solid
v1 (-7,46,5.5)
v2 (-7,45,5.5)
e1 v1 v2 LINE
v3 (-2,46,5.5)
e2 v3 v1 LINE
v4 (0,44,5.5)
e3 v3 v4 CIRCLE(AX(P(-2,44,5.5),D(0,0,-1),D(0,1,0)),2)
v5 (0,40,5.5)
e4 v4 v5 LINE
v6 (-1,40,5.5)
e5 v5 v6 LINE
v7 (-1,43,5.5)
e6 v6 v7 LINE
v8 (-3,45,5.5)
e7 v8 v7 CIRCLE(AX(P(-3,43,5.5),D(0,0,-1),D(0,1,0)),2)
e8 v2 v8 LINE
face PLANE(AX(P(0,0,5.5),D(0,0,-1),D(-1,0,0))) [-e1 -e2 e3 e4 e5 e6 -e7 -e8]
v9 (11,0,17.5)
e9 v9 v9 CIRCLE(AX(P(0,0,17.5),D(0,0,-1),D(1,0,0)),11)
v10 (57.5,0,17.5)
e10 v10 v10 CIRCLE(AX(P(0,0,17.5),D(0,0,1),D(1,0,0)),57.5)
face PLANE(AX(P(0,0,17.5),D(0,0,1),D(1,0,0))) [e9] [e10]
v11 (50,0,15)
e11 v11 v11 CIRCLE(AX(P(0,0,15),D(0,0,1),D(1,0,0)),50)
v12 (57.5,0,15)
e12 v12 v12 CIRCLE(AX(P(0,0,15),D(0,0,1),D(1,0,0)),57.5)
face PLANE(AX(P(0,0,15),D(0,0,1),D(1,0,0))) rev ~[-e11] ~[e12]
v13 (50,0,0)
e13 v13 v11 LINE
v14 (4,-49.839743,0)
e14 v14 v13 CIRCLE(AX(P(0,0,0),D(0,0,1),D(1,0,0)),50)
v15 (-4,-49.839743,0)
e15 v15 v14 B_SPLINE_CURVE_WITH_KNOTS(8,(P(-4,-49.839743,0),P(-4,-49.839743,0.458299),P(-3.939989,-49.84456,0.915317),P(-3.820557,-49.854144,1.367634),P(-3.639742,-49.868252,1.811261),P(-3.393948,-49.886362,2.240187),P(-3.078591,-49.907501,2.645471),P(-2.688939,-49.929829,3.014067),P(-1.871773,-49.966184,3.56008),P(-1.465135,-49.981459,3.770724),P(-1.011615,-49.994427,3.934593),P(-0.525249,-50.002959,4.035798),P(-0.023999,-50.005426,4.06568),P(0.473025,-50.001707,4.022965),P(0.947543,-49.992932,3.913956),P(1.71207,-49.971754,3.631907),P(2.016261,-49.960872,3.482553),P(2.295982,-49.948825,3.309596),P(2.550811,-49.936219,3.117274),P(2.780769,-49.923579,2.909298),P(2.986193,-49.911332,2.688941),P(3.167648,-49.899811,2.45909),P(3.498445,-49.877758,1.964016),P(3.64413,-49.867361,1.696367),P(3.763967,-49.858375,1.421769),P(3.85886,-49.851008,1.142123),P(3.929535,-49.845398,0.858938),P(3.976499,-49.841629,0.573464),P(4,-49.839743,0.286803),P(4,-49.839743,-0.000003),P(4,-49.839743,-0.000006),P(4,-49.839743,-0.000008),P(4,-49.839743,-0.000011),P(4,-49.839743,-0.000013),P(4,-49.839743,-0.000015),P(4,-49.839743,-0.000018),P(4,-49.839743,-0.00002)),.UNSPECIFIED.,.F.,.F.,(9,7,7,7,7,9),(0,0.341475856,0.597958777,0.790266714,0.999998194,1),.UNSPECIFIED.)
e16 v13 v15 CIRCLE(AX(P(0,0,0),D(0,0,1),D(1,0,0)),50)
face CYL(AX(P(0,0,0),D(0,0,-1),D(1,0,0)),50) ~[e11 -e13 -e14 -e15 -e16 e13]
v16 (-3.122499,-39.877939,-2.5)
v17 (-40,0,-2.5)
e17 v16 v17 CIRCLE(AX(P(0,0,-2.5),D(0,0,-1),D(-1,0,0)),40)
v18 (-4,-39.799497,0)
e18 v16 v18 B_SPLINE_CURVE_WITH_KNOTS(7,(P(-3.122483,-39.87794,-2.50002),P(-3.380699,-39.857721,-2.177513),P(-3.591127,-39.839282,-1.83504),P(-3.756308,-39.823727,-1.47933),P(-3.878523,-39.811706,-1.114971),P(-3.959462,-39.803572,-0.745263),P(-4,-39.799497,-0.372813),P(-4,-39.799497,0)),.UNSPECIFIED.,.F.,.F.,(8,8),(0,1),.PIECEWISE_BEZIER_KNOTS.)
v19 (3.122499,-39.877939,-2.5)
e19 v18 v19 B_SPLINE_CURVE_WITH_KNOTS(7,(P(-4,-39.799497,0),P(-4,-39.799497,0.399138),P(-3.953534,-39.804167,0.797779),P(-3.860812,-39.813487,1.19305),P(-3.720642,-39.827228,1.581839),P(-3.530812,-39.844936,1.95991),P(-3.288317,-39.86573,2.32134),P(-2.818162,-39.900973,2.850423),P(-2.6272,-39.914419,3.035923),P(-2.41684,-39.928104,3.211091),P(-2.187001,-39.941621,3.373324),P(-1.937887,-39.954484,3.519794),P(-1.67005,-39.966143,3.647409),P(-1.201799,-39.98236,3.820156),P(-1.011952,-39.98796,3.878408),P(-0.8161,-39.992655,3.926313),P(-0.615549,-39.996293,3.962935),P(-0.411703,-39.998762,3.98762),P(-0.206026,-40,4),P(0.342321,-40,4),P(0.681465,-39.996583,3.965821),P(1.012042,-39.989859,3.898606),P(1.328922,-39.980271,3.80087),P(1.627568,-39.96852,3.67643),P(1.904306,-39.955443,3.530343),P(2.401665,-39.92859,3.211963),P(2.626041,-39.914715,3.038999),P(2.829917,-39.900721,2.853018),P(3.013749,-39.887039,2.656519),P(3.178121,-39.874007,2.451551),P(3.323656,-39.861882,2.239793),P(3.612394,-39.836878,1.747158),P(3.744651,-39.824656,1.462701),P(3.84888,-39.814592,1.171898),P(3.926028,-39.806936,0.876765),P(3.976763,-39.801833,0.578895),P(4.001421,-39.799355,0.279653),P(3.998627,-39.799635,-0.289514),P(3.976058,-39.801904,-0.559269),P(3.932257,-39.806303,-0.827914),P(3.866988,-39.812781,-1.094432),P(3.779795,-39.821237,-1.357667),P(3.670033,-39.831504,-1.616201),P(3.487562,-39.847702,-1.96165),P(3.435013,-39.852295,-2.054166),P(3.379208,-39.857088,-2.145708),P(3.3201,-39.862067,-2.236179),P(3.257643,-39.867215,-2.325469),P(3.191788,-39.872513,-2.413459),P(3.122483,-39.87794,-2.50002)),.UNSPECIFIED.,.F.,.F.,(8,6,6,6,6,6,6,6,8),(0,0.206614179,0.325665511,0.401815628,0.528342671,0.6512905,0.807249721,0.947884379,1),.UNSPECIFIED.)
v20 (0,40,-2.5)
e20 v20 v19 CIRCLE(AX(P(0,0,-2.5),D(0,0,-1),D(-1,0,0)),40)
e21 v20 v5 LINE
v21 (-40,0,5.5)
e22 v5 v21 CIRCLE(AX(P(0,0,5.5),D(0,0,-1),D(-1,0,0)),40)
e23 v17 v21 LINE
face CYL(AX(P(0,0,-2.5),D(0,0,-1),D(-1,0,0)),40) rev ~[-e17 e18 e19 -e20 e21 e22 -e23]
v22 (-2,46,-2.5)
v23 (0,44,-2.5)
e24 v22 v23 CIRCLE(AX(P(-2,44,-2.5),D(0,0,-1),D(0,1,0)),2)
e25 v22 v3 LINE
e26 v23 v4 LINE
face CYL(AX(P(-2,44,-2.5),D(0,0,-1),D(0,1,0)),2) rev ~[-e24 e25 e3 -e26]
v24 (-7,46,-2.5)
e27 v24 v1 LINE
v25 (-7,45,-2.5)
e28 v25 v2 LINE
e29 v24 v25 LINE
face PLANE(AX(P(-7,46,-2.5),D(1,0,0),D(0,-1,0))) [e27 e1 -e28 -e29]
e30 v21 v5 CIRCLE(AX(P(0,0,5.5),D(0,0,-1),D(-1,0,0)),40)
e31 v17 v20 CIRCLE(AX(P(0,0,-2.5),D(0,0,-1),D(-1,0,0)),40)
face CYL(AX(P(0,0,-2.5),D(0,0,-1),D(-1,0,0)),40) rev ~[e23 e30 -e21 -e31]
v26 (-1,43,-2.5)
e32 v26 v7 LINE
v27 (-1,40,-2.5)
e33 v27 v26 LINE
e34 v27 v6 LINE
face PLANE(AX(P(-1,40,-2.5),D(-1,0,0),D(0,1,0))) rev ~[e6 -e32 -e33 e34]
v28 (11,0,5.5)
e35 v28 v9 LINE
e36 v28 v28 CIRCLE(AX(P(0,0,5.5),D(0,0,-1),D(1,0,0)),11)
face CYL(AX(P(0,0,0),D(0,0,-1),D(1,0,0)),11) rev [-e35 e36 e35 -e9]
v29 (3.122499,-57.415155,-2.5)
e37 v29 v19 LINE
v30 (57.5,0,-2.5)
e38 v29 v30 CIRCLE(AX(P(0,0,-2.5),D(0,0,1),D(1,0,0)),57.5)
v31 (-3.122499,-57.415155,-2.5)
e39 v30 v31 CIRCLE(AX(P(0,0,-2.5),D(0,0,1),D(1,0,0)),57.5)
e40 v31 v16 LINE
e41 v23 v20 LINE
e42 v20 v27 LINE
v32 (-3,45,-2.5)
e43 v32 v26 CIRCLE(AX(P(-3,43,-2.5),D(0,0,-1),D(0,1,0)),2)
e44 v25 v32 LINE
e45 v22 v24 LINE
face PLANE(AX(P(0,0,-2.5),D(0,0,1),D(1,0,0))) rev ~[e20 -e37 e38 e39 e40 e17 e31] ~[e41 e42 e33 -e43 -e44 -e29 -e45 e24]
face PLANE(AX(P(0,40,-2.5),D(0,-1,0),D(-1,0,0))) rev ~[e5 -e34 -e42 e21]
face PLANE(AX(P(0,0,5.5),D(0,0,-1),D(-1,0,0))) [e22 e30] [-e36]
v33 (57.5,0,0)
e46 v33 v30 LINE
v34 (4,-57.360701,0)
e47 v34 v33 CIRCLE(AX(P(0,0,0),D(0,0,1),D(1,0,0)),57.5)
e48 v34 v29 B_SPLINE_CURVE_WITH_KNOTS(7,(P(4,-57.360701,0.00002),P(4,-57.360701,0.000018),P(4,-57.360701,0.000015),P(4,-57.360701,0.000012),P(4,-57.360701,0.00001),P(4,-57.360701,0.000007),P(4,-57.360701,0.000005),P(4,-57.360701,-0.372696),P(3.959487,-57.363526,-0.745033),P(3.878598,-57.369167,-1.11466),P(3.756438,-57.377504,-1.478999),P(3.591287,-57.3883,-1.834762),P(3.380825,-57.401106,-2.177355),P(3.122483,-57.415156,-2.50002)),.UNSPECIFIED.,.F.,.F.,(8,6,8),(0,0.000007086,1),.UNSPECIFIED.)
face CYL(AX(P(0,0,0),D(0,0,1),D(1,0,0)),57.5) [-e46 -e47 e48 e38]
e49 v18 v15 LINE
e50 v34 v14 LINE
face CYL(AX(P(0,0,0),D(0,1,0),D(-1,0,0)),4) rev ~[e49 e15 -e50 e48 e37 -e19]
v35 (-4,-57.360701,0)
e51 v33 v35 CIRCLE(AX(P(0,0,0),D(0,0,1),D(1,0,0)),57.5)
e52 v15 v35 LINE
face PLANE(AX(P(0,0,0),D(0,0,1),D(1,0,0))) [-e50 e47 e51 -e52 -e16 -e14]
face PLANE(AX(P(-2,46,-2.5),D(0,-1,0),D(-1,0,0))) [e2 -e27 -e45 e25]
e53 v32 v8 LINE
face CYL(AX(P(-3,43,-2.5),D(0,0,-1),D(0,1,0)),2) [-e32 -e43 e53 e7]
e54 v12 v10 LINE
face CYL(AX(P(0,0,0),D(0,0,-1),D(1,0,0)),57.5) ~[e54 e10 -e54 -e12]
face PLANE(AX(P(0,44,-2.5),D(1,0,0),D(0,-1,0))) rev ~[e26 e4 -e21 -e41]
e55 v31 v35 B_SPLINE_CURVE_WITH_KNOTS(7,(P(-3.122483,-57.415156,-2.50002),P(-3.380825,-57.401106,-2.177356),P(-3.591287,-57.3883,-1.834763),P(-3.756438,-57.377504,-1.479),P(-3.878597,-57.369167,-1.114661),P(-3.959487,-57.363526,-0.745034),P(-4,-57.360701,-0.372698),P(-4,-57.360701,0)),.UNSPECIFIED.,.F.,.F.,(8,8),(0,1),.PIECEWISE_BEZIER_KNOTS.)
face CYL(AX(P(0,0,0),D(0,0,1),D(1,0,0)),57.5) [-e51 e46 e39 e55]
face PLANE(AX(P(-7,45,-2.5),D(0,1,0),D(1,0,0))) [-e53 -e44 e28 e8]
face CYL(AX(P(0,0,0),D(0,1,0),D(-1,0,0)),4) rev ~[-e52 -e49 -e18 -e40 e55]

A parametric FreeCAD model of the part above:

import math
import FreeCAD as App
import Part
import Sketcher

V = App.Vector

doc = App.newDocument("Part")
params = doc.addObject("Spreadsheet::Sheet", "Params")
for row, (alias, value) in enumerate([
    ("sketch1_diameter", "100 mm"),
    ("sketch1_diameter2", "22 mm"),
    ("pad1_length", "17.5 mm"),
    ("pad1_length2", "2.5 mm"),
    ("sketch2_diameter", "22 mm"),
    ("sketch2_diameter2", "115 mm"),
    ("sketch2_diameter3", "100 mm"),
    ("pad2_length", "17.5 mm"),
    ("pad2_length2", "2.5 mm"),
    ("sketch3_diameter", "115 mm"),
    ("sketch3_diameter2", "100 mm"),
    ("pocket1_length", "15 mm"),
    ("sketch4_diameter", "22 mm"),
    ("sketch5_diameter", "80 mm"),
    ("sketch5_radius", "2 mm"),
    ("sketch5_width", "1 mm"),
    ("sketch5_width2", "4 mm"),
    ("pocket3_length", "8 mm"),
    ("sketch6_diameter", "8 mm"),
    ("pocket4_length", "77.25 mm"),
], start=1):
    params.set(f"A{row}", alias)
    params.set(f"B{row}", "=" + value)
    params.setAlias(f"B{row}", alias)

body = doc.addObject("PartDesign::Body", "Body")

sketch1 = body.newObject("Sketcher::SketchObject", "Sketch")
sketch1.AttachmentSupport = (doc.getObject("XY_Plane"), [""])
sketch1.MapMode = "FlatFace"
sketch1.addGeometry([
    Part.Circle(V(0, 0, 0), V(0, 0, 1), 50),
    Part.Circle(V(0, 0, 0), V(0, 0, 1), 11),
], False)
sketch1.addConstraint([
    Sketcher.Constraint("Coincident", 0, 3, -1, 1),
    Sketcher.Constraint("Coincident", 1, 3, -1, 1),
    Sketcher.Constraint("Diameter", 0, 100.0),
    Sketcher.Constraint("Diameter", 1, 22.0),
])
sketch1.setExpression("Constraints[2]", "Params.sketch1_diameter")
sketch1.setExpression("Constraints[3]", "Params.sketch1_diameter2")
pad1 = body.newObject("PartDesign::Pad", "Pad")
pad1.Profile = sketch1
pad1.Type = "TwoLengths"
pad1.setExpression("Length", "Params.pad1_length")
pad1.setExpression("Length2", "Params.pad1_length2")

sketch2 = body.newObject("Sketcher::SketchObject", "Sketch001")
sketch2.AttachmentSupport = (doc.getObject("XY_Plane"), [""])
sketch2.MapMode = "FlatFace"
sketch2.addGeometry([
    Part.Circle(V(0, 0, 0), V(0, 0, 1), 11),
    Part.Circle(V(0, 0, 0), V(0, 0, 1), 58),
    Part.Circle(V(0, 0, 0), V(0, 0, 1), 50),
], False)
sketch2.addConstraint([
    Sketcher.Constraint("Coincident", 0, 3, -1, 1),
    Sketcher.Constraint("Coincident", 1, 3, -1, 1),
    Sketcher.Constraint("Coincident", 2, 3, -1, 1),
    Sketcher.Constraint("Diameter", 0, 22.0),
    Sketcher.Constraint("Diameter", 1, 115.0),
    Sketcher.Constraint("Diameter", 2, 100.0),
])
sketch2.setExpression("Constraints[3]", "Params.sketch2_diameter")
sketch2.setExpression("Constraints[4]", "Params.sketch2_diameter2")
sketch2.setExpression("Constraints[5]", "Params.sketch2_diameter3")
pad2 = body.newObject("PartDesign::Pad", "Pad001")
pad2.Profile = sketch2
pad2.Type = "TwoLengths"
pad2.setExpression("Length", "Params.pad2_length")
pad2.setExpression("Length2", "Params.pad2_length2")

sketch3 = body.newObject("Sketcher::SketchObject", "Sketch002")
sketch3.AttachmentSupport = (doc.getObject("XY_Plane"), [""])
sketch3.MapMode = "FlatFace"
sketch3.addGeometry([
    Part.Circle(V(0, 0, 0), V(0, 0, 1), 58),
    Part.Circle(V(0, 0, 0), V(0, 0, 1), 50),
], False)
sketch3.addConstraint([
    Sketcher.Constraint("Coincident", 0, 3, -1, 1),
    Sketcher.Constraint("Coincident", 1, 3, -1, 1),
    Sketcher.Constraint("Diameter", 0, 115.0),
    Sketcher.Constraint("Diameter", 1, 100.0),
])
sketch3.setExpression("Constraints[2]", "Params.sketch3_diameter")
sketch3.setExpression("Constraints[3]", "Params.sketch3_diameter2")
pocket1 = body.newObject("PartDesign::Pocket", "Pocket")
pocket1.Profile = sketch3
pocket1.setExpression("Length", "Params.pocket1_length")
pocket1.Reversed = True

sketch4 = body.newObject("Sketcher::SketchObject", "Sketch003")
sketch4.AttachmentSupport = (doc.getObject("XY_Plane"), [""])
sketch4.MapMode = "FlatFace"
sketch4.addGeometry(Part.Circle(V(0, 0, 0), V(0, 0, 1), 11), False)
sketch4.addConstraint([
    Sketcher.Constraint("Coincident", 0, 3, -1, 1),
    Sketcher.Constraint("Diameter", 0, 22.0),
])
sketch4.setExpression("Constraints[1]", "Params.sketch4_diameter")
pocket2 = body.newObject("PartDesign::Pocket", "Pocket001")
pocket2.Profile = sketch4
pocket2.Type = "ThroughAll"
pocket2.Midplane = True

sketch5 = body.newObject("Sketcher::SketchObject", "Sketch004")
sketch5.AttachmentSupport = (doc.getObject("XY_Plane"), [""])
sketch5.MapMode = "FlatFace"
sketch5.AttachmentOffset = App.Placement(V(0, 0, -2.5), App.Rotation())
sketch5.addGeometry([
    Part.Circle(V(0, 0, 0), V(0, 0, 1), 40),
    Part.LineSegment(V(0, 44, 0), V(0, 40, 0)),
    Part.LineSegment(V(0, 40, 0), V(-1, 40, 0)),
    Part.LineSegment(V(-1, 40, 0), V(-1, 43, 0)),
    Part.ArcOfCircle(Part.Circle(V(-3, 43, 0), V(0, 0, 1), 2), math.radians(0), math.radians(90)),
    Part.LineSegment(V(-3, 45, 0), V(-7, 45, 0)),
    Part.LineSegment(V(-7, 45, 0), V(-7, 46, 0)),
    Part.LineSegment(V(-7, 46, 0), V(-2, 46, 0)),
    Part.ArcOfCircle(Part.Circle(V(-2, 44, 0), V(0, 0, 1), 2), math.radians(0), math.radians(90)),
], False)
sketch5.addConstraint([
    Sketcher.Constraint("Coincident", 1, 2, 2, 1),
    Sketcher.Constraint("Coincident", 2, 2, 3, 1),
    Sketcher.Constraint("Tangent", 3, 2, 4, 1),
    Sketcher.Constraint("Tangent", 4, 2, 5, 1),
    Sketcher.Constraint("Coincident", 5, 2, 6, 1),
    Sketcher.Constraint("Coincident", 6, 2, 7, 1),
    Sketcher.Constraint("Tangent", 7, 2, 8, 2),
    Sketcher.Constraint("Tangent", 8, 1, 1, 1),
    Sketcher.Constraint("Vertical", 1),
    Sketcher.Constraint("Horizontal", 2),
    Sketcher.Constraint("Vertical", 3),
    Sketcher.Constraint("Horizontal", 5),
    Sketcher.Constraint("Vertical", 6),
    Sketcher.Constraint("Horizontal", 7),
    Sketcher.Constraint("Coincident", 0, 3, -1, 1),
    Sketcher.Constraint("Equal", 4, 8),
    Sketcher.Constraint("PointOnObject", 1, 2, -2),
    Sketcher.Constraint("Equal", 5, 1),
    Sketcher.Constraint("Equal", 2, 6),
    Sketcher.Constraint("Diameter", 0, 80.0),
    Sketcher.Constraint("Radius", 4, 2.0),
    Sketcher.Constraint("DistanceX", 2, 2, 2, 1, 1.0),
    Sketcher.Constraint("DistanceX", 5, 2, 5, 1, 4.0),
    Sketcher.Constraint("DistanceY", -1, 1, 4, 3, 43.0),
])
sketch5.setExpression("Constraints[19]", "Params.sketch5_diameter")
sketch5.setExpression("Constraints[20]", "Params.sketch5_radius")
sketch5.setExpression("Constraints[21]", "Params.sketch5_width")
sketch5.setExpression("Constraints[22]", "Params.sketch5_width2")
pocket3 = body.newObject("PartDesign::Pocket", "Pocket002")
pocket3.Profile = sketch5
pocket3.setExpression("Length", "Params.pocket3_length")
pocket3.Reversed = True

sketch6 = body.newObject("Sketcher::SketchObject", "Sketch005")
sketch6.AttachmentSupport = (doc.getObject("XZ_Plane"), [""])
sketch6.MapMode = "FlatFace"
sketch6.addGeometry(Part.Circle(V(0, 0, 0), V(0, 0, 1), 4), False)
sketch6.addConstraint([
    Sketcher.Constraint("Coincident", 0, 3, -1, 1),
    Sketcher.Constraint("Diameter", 0, 8.0),
])
sketch6.setExpression("Constraints[1]", "Params.sketch6_diameter")
pocket4 = body.newObject("PartDesign::Pocket", "Pocket003")
pocket4.Profile = sketch6
pocket4.setExpression("Length", "Params.pocket4_length")
pocket4.Reversed = True

doc.recompute()
